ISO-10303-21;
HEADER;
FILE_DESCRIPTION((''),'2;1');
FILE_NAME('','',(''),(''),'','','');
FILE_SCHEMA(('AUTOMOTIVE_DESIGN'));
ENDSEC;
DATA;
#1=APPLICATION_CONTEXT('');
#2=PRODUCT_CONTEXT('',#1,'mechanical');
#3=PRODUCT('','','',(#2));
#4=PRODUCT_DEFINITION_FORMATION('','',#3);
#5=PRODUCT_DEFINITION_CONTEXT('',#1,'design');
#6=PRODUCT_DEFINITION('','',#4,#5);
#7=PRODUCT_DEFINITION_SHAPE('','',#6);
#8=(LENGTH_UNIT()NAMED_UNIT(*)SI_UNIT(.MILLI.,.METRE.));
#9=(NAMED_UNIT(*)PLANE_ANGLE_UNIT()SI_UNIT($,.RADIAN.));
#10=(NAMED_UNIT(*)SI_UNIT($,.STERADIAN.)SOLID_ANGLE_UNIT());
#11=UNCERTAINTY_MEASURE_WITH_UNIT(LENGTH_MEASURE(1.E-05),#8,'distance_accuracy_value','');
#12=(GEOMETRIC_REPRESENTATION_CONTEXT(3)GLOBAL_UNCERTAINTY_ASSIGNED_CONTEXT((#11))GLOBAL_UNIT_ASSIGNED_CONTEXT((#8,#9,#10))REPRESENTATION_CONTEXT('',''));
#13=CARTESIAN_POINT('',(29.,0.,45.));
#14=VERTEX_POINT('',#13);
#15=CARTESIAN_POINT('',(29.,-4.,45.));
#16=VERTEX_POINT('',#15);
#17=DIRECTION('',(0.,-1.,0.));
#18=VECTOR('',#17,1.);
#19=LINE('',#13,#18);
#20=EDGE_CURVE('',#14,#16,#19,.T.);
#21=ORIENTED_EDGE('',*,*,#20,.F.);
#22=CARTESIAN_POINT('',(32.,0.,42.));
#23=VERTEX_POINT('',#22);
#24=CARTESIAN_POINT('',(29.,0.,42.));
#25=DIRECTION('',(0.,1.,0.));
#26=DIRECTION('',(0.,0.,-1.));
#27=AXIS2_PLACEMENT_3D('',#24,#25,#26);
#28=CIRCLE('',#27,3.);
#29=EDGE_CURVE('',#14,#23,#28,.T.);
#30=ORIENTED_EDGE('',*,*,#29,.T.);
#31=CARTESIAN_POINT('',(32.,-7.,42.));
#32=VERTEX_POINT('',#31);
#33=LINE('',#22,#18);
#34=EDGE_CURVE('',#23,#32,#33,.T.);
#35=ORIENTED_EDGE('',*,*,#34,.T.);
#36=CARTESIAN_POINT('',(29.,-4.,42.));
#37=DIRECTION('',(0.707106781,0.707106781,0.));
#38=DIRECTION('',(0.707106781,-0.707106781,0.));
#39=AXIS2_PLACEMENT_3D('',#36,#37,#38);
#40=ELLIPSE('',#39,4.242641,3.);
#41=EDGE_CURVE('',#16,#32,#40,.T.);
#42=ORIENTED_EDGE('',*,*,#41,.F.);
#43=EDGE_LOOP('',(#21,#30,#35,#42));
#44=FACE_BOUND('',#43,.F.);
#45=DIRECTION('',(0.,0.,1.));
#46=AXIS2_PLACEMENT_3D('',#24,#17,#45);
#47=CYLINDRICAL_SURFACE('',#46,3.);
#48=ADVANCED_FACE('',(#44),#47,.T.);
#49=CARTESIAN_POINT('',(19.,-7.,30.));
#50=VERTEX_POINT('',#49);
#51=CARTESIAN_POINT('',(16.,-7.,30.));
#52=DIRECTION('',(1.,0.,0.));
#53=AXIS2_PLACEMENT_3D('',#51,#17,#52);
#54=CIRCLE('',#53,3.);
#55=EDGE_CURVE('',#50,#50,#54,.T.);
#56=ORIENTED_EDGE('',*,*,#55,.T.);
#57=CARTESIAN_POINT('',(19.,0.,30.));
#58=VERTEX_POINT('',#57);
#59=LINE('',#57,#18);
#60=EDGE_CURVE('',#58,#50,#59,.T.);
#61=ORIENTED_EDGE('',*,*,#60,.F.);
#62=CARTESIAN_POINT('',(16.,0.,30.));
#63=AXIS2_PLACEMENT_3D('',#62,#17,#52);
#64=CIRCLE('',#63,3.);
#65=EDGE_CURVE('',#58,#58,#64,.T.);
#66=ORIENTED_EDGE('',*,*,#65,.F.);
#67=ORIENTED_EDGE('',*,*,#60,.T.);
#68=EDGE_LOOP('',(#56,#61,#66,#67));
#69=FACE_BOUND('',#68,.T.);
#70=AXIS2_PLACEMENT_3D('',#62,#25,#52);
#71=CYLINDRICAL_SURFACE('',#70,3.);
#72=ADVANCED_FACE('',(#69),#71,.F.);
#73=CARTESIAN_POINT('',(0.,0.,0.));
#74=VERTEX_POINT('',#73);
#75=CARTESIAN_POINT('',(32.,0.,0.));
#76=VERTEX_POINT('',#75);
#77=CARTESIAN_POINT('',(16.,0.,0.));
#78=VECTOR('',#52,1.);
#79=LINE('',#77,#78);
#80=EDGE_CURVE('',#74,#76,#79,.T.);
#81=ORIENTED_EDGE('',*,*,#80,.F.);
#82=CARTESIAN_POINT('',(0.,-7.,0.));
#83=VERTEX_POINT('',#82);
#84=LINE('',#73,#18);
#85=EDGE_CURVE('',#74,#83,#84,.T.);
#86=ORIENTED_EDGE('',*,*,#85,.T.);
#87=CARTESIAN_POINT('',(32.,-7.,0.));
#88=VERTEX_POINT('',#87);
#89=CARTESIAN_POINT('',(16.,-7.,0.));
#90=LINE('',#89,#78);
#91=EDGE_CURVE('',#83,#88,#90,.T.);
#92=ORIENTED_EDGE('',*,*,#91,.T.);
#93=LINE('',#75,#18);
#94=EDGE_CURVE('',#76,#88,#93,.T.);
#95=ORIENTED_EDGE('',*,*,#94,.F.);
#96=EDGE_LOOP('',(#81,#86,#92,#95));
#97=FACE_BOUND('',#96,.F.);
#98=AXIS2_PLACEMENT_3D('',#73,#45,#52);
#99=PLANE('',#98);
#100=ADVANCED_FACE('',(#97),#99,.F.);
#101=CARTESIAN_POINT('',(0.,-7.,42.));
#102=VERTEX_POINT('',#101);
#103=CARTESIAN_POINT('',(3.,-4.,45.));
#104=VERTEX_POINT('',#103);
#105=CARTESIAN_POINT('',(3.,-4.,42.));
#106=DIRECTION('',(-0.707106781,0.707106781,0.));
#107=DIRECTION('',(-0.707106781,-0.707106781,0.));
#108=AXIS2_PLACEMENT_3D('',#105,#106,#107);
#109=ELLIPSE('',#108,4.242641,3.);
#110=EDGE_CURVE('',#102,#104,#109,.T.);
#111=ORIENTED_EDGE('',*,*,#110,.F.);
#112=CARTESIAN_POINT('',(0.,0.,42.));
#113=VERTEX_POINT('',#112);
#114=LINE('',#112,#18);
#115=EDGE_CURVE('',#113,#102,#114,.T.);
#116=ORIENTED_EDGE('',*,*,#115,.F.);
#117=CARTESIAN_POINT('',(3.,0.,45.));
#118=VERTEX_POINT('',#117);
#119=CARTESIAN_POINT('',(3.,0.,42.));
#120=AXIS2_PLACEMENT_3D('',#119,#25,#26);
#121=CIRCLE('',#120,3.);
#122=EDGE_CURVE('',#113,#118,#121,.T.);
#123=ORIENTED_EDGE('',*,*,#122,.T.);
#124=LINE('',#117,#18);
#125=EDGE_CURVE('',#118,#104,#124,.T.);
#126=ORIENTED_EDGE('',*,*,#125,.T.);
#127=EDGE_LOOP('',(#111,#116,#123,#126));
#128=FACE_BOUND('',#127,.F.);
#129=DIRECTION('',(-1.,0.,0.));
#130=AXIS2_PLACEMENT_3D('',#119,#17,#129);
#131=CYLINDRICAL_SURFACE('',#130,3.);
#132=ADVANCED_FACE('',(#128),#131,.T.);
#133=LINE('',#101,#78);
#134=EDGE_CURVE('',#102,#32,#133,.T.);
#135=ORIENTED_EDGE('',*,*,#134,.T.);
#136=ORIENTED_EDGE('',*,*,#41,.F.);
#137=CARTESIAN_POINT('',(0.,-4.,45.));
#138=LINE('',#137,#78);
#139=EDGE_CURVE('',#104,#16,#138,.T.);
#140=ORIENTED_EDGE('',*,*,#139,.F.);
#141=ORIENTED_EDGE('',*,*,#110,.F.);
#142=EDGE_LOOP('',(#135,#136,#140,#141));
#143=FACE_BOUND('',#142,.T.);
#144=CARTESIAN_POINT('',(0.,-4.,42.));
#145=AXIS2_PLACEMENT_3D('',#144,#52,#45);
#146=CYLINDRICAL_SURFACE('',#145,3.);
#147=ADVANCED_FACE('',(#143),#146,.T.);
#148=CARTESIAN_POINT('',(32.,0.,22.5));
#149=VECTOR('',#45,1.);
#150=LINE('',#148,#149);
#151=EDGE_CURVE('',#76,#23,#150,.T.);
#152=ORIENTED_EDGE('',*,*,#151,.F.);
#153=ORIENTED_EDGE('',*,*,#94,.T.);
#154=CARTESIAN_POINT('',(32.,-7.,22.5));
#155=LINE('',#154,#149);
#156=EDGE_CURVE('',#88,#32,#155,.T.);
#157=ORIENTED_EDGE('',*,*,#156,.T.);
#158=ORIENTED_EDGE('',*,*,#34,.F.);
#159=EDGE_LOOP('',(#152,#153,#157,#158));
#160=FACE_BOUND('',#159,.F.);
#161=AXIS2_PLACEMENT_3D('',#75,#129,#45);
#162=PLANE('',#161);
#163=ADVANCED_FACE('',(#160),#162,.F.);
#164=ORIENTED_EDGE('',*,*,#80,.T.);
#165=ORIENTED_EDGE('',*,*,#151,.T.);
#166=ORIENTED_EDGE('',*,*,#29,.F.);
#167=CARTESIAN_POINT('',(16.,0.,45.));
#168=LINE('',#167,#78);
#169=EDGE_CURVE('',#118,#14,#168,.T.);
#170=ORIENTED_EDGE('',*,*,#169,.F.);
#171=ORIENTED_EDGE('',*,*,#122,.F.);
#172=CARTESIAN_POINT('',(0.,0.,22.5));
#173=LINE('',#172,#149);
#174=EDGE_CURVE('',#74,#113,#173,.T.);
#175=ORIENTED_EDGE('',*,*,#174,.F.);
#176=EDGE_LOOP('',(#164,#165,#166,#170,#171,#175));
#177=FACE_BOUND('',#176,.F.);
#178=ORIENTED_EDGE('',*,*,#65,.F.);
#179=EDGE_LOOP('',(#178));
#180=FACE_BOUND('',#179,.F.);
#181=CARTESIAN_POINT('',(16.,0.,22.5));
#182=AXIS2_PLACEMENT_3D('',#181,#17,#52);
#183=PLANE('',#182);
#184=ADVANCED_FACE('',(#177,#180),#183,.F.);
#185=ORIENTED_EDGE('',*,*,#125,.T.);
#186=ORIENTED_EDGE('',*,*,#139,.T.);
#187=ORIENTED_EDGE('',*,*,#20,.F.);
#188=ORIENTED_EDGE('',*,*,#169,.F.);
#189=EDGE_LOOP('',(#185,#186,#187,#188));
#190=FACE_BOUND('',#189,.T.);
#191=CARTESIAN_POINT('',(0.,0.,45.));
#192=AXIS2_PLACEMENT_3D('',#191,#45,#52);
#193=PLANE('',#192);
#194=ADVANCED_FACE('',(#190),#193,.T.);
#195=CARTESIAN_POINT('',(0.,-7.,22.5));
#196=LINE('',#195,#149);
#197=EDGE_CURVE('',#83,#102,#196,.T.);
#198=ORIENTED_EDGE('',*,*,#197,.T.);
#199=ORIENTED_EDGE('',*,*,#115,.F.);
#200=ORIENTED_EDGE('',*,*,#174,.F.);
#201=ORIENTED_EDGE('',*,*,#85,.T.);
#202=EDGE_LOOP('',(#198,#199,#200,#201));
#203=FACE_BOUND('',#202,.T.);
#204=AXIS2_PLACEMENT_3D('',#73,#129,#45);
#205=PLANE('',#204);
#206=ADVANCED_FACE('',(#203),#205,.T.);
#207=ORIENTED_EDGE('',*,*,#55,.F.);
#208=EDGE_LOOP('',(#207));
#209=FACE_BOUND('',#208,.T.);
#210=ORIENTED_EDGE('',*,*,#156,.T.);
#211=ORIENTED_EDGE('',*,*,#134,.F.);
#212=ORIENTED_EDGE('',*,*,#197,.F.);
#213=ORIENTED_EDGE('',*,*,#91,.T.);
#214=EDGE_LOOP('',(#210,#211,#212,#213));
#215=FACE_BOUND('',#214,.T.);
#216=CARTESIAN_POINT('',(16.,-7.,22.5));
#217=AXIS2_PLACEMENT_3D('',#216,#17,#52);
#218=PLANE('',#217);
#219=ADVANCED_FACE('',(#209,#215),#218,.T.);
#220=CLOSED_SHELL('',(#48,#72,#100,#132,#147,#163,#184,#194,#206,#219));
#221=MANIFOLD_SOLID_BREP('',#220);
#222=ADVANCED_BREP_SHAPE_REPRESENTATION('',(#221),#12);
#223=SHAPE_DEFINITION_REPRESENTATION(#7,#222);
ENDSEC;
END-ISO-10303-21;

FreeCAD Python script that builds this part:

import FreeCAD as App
import Part
import Sketcher
from FreeCAD import Vector
Q = App.Units.Quantity


def edges_at(feature, points):
    """Names of the edges that pass closest to the given points."""
    edges = feature.Shape.Edges
    near = lambda p: min(range(len(edges)), key=lambda i: edges[i].distToShape(Part.Vertex(*p))[0])
    return sorted({f"Edge{near(p) + 1}" for p in points})


def add_polygon(sketch, points):
    """Adds a closed chain of lines whose ends are joined by coincident constraints."""
    first, n = sketch.GeometryCount, len(points)
    for a, b in zip(points, points[1:] + points[:1]):
        sketch.addGeometry(Part.LineSegment(App.Vector(*a, 0), App.Vector(*b, 0)), False)
    for i in range(n):
        sketch.addConstraint(Sketcher.Constraint("Coincident", first + i, 2, first + (i + 1) % n, 1))

doc = App.newDocument("Part")
body = doc.addObject("PartDesign::Body", "Body")

sketch1 = doc.addObject("Sketcher::SketchObject", "Sketch")
body.addObject(sketch1)
sketch1.AttachmentSupport = (doc.XZ_Plane, [""])
sketch1.MapMode = "FlatFace"
add_polygon(sketch1, [(0, 45), (0, 0), (32, 0), (32, 45)])
sketch1.addGeometry(Part.Circle(Vector(16, 30, 0), Vector(0, 0, 1), 3), False)
sketch1.addConstraint([
    Sketcher.Constraint("Vertical", 0),
    Sketcher.Constraint("Horizontal", 1),
    Sketcher.Constraint("Vertical", 2),
    Sketcher.Constraint("Horizontal", 3),
    Sketcher.Constraint("Coincident", 0, 2, -1, 1),
    Sketcher.Constraint("Diameter", 4, Q("6 mm")),
    Sketcher.Constraint("DistanceX", 1, 1, 1, 2, Q("32 mm")),
    Sketcher.Constraint("DistanceY", 0, 2, 0, 1, Q("45 mm")),
    Sketcher.Constraint("DistanceX", -1, 1, 4, 3, Q("16 mm")),
    Sketcher.Constraint("DistanceY", -1, 1, 4, 3, Q("30 mm")),
])
pad1 = doc.addObject("PartDesign::Pad", "Pad")
body.addObject(pad1)
pad1.Profile = sketch1
pad1.Length = 7
doc.recompute()

fillet = doc.addObject("PartDesign::Fillet", "Fillet")
body.addObject(fillet)
fillet.Base = (pad1, edges_at(pad1, [(32, -3.5, 45), (0, -3.5, 45), (16, -7, 45)]))
fillet.Radius = 3

doc.recompute()
